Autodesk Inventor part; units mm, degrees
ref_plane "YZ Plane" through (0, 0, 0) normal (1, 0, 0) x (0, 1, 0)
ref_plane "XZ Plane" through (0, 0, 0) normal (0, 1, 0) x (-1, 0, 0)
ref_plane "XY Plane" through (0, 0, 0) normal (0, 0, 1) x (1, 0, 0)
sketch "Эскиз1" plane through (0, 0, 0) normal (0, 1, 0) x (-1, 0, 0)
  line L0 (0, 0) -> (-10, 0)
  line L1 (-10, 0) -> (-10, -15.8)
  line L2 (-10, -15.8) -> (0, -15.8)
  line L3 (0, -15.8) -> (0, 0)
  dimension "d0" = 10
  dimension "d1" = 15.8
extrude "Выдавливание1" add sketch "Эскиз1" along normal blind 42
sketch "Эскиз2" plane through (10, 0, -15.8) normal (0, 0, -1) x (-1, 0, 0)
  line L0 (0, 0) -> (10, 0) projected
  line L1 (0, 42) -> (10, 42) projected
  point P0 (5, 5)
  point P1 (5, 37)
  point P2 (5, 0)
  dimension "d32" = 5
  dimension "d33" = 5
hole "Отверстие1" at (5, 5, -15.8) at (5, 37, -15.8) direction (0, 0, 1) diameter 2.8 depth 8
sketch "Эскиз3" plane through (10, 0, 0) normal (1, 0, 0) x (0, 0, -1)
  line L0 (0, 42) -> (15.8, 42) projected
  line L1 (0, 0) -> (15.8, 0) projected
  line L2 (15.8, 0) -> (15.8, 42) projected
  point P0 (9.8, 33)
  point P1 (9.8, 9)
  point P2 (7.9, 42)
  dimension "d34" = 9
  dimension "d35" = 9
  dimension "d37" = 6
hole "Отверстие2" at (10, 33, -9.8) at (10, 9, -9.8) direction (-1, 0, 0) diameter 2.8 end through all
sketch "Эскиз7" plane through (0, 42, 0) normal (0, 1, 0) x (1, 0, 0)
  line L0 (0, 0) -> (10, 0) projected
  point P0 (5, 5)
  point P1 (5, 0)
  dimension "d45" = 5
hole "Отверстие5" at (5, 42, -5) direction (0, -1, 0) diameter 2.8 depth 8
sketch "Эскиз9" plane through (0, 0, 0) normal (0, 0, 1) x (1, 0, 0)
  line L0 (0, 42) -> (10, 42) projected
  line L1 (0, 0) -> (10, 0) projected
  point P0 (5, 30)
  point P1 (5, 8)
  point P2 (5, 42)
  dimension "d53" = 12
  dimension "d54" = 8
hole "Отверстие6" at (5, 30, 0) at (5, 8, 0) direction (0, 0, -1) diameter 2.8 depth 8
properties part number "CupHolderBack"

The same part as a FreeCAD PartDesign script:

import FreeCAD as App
import Part
import Sketcher

V = App.Vector
Q = App.Units.Quantity

doc = App.newDocument("Part")
body = doc.addObject("PartDesign::Body", "Body")

# Sketch on XZ plane
sketch1 = body.newObject("Sketcher::SketchObject", "Sketch")
sketch1.AttachmentSupport = (doc.getObject("XZ_Plane"), [""])
sketch1.MapMode = "FlatFace"
sketch1.addGeometry([
    Part.LineSegment(V(0, -16, 0), V(0, 0, 0)),
    Part.LineSegment(V(0, 0, 0), V(10, 0, 0)),
    Part.LineSegment(V(10, 0, 0), V(10, -16, 0)),
    Part.LineSegment(V(10, -16, 0), V(0, -16, 0)),
], False)
sketch1.addConstraint([
    Sketcher.Constraint("Coincident", 0, 2, 1, 1),
    Sketcher.Constraint("Coincident", 1, 2, 2, 1),
    Sketcher.Constraint("Coincident", 2, 2, 3, 1),
    Sketcher.Constraint("Coincident", 3, 2, 0, 1),
    Sketcher.Constraint("Vertical", 0),
    Sketcher.Constraint("Horizontal", 1),
    Sketcher.Constraint("Vertical", 2),
    Sketcher.Constraint("Horizontal", 3),
    Sketcher.Constraint("Coincident", 0, 2, -1, 1),
    Sketcher.Constraint("DistanceX", 1, 1, 1, 2, Q("10 mm")),
    Sketcher.Constraint("DistanceY", 0, 1, 0, 2, Q("15.8 mm")),
])
pad1 = body.newObject("PartDesign::Pad", "Pad")
pad1.Profile = sketch1
pad1.Length = 42
pad1.Reversed = True

# Sketch on XY plane
sketch2 = body.newObject("Sketcher::SketchObject", "Sketch001")
sketch2.AttachmentSupport = (doc.getObject("XY_Plane"), [""])
sketch2.MapMode = "FlatFace"
sketch2.AttachmentOffset = App.Placement(V(0, 0, -15.8), App.Rotation())
sketch2.addGeometry([
    Part.Circle(V(5, 5, 0), V(0, 0, 1), 1.4),
    Part.Circle(V(5, 37, 0), V(0, 0, 1), 1.4),
], False)
sketch2.addConstraint([
    Sketcher.Constraint("Equal", 0, 1),
    Sketcher.Constraint("Vertical", 0, 3, 1, 3),
    Sketcher.Constraint("Diameter", 0, Q("2.8 mm")),
    Sketcher.Constraint("DistanceX", -1, 1, 0, 3, Q("5 mm")),
    Sketcher.Constraint("DistanceY", -1, 1, 0, 3, Q("5 mm")),
    Sketcher.Constraint("DistanceY", -1, 1, 1, 3, Q("37 mm")),
])
doc.recompute()
hole = body.newObject("PartDesign::Hole", "Hole")
hole.Profile = sketch2
hole.ThreadType = "None"
hole.Diameter = 2.8
hole.DepthType = "Dimension"
hole.Depth = 8
hole.DrillPoint = "Flat"
hole.Reversed = True

# Sketch on YZ plane
sketch3 = body.newObject("Sketcher::SketchObject", "Sketch002")
sketch3.AttachmentSupport = (doc.getObject("YZ_Plane"), [""])
sketch3.MapMode = "FlatFace"
sketch3.AttachmentOffset = App.Placement(V(0, 0, 10), App.Rotation())
sketch3.addGeometry([
    Part.Circle(V(33, -9.8, 0), V(0, 0, 1), 1.4),
    Part.Circle(V(9, -9.8, 0), V(0, 0, 1), 1.4),
], False)
sketch3.addConstraint([
    Sketcher.Constraint("Equal", 0, 1),
    Sketcher.Constraint("Horizontal", 0, 3, 1, 3),
    Sketcher.Constraint("Diameter", 0, Q("2.8 mm")),
    Sketcher.Constraint("DistanceX", -1, 1, 0, 3, Q("33 mm")),
    Sketcher.Constraint("DistanceX", -1, 1, 1, 3, Q("9 mm")),
    Sketcher.Constraint("DistanceY", 0, 3, -1, 1, Q("9.8 mm")),
])
doc.recompute()
hole2 = body.newObject("PartDesign::Hole", "Hole001")
hole2.Profile = sketch3
hole2.ThreadType = "None"
hole2.Diameter = 2.8
hole2.DepthType = "ThroughAll"

# Sketch on XZ plane
sketch4 = body.newObject("Sketcher::SketchObject", "Sketch003")
sketch4.AttachmentSupport = (doc.getObject("XZ_Plane"), [""])
sketch4.MapMode = "FlatFace"
sketch4.AttachmentOffset = App.Placement(V(0, 0, -42), App.Rotation())
sketch4.addGeometry(Part.Circle(V(5, -5, 0), V(0, 0, 1), 1.4), False)
sketch4.addConstraint([
    Sketcher.Constraint("Diameter", 0, Q("2.8 mm")),
    Sketcher.Constraint("DistanceX", -1, 1, 0, 3, Q("5 mm")),
    Sketcher.Constraint("DistanceY", 0, 3, -1, 1, Q("5 mm")),
])
doc.recompute()
hole3 = body.newObject("PartDesign::Hole", "Hole002")
hole3.Profile = sketch4
hole3.ThreadType = "None"
hole3.Diameter = 2.8
hole3.DepthType = "Dimension"
hole3.Depth = 8
hole3.DrillPoint = "Flat"
hole3.Reversed = True

# Sketch on XY plane
sketch5 = body.newObject("Sketcher::SketchObject", "Sketch004")
sketch5.AttachmentSupport = (doc.getObject("XY_Plane"), [""])
sketch5.MapMode = "FlatFace"
sketch5.addGeometry([
    Part.Circle(V(5, 30, 0), V(0, 0, 1), 1.4),
    Part.Circle(V(5, 8, 0), V(0, 0, 1), 1.4),
], False)
sketch5.addConstraint([
    Sketcher.Constraint("Equal", 0, 1),
    Sketcher.Constraint("Vertical", 0, 3, 1, 3),
    Sketcher.Constraint("Diameter", 0, Q("2.8 mm")),
    Sketcher.Constraint("DistanceX", -1, 1, 0, 3, Q("5 mm")),
    Sketcher.Constraint("DistanceY", -1, 1, 0, 3, Q("30 mm")),
    Sketcher.Constraint("DistanceY", -1, 1, 1, 3, Q("8 mm")),
])
doc.recompute()
hole4 = body.newObject("PartDesign::Hole", "Hole003")
hole4.Profile = sketch5
hole4.ThreadType = "None"
hole4.Diameter = 2.8
hole4.DepthType = "Dimension"
hole4.Depth = 8
hole4.DrillPoint = "Flat"

doc.recompute()
